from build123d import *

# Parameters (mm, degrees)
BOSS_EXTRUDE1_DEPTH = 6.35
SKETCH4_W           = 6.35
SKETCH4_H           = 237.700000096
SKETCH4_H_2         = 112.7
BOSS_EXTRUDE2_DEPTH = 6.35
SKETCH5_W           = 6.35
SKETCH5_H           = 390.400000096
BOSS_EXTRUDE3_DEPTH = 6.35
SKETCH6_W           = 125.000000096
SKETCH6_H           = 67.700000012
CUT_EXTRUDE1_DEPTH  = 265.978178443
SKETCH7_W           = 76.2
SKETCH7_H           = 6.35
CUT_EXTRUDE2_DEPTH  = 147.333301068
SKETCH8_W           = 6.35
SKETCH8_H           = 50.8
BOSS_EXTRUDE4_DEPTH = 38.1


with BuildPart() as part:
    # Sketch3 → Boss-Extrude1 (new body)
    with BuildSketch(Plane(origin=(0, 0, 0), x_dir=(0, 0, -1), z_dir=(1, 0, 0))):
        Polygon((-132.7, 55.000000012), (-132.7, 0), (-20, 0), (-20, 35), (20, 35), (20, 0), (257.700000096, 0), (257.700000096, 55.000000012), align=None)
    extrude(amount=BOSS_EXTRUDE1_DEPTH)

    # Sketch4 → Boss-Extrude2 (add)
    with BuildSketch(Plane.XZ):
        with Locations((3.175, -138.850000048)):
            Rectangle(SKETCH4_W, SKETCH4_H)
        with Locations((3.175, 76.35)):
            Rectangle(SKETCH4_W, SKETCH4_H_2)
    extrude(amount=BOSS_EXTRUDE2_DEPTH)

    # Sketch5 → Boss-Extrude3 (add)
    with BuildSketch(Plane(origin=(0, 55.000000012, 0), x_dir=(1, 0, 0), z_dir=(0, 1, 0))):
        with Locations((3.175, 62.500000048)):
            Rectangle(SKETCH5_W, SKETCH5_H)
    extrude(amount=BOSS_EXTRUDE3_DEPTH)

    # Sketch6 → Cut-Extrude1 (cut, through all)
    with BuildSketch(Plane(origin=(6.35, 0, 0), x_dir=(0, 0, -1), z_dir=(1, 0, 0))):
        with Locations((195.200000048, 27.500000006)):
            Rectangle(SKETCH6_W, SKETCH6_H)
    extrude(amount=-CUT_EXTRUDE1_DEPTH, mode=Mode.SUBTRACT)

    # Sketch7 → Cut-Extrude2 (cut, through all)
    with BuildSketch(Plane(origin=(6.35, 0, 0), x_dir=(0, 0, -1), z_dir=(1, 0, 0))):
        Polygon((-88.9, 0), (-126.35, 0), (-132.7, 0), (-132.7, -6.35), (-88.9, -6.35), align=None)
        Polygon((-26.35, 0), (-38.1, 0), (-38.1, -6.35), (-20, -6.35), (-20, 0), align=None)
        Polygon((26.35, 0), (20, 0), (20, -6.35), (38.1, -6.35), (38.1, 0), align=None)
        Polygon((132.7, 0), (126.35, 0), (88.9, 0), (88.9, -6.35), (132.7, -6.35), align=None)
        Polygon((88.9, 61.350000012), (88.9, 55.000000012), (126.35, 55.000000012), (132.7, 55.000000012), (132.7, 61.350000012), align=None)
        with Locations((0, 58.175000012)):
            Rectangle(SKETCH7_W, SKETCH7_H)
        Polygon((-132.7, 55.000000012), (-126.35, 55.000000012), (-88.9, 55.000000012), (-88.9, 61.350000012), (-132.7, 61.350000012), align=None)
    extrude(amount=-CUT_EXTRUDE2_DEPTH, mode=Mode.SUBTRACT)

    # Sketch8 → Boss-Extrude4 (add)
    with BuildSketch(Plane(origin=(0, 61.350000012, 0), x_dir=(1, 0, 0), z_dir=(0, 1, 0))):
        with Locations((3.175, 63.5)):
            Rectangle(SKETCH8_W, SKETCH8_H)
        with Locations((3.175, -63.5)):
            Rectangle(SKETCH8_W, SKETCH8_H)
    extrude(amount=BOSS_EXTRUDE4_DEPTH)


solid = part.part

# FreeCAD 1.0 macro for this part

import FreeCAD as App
import Part
import Sketcher
from FreeCAD import Vector
Q = App.Units.Quantity

doc = App.newDocument("Part")
params = doc.addObject("Spreadsheet::Sheet", "Params")
for row, (alias, value) in enumerate([
    ("sketch1_width", "55 mm"),
    ("sketch1_width2", "35 mm"),
    ("sketch1_height", "40 mm"),
    ("sketch1_height2", "112.7 mm"),
    ("sketch1_height3", "237.7 mm"),
    ("pad1_length", "6.35 mm"),
    ("sketch2_height", "237.7 mm"),
    ("sketch2_height2", "112.7 mm"),
    ("sketch2_width", "6.35 mm"),
    ("pad2_length", "6.35 mm"),
    ("sketch3_height", "390.4 mm"),
    ("sketch3_width", "6.35 mm"),
    ("pad3_length", "6.35 mm"),
    ("sketch4_height", "125 mm"),
    ("sketch4_width", "67.7 mm"),
    ("sketch5_height", "43.8 mm"),
    ("sketch5_height2", "18.1 mm"),
    ("sketch5_height3", "76.2 mm"),
    ("sketch5_width", "6.35 mm"),
    ("sketch6_height", "50.8 mm"),
    ("sketch6_width", "6.35 mm"),
    ("pad4_length", "38.1 mm"),
], start=1):
    params.set(f"A{row}", alias)
    params.set(f"B{row}", "=" + value)
    params.setAlias(f"B{row}", alias)

body = doc.addObject("PartDesign::Body", "Body")

# Sketch on YZ plane
sketch1 = body.newObject("Sketcher::SketchObject", "Sketch")
sketch1.AttachmentSupport = (doc.getObject("YZ_Plane"), [""])
sketch1.MapMode = "FlatFace"
sketch1.addGeometry(Part.LineSegment(Vector(55, 133, 0), Vector(0, 133, 0)), False)
sketch1.addGeometry(Part.LineSegment(Vector(0, 133, 0), Vector(0, 20, 0)), False)
sketch1.addGeometry(Part.LineSegment(Vector(0, 20, 0), Vector(35, 20, 0)), False)
sketch1.addGeometry(Part.LineSegment(Vector(35, 20, 0), Vector(35, -20, 0)), False)
sketch1.addGeometry(Part.LineSegment(Vector(35, -20, 0), Vector(0, -20, 0)), False)
sketch1.addGeometry(Part.LineSegment(Vector(0, -20, 0), Vector(0, -258, 0)), False)
sketch1.addGeometry(Part.LineSegment(Vector(0, -258, 0), Vector(55, -258, 0)), False)
sketch1.addGeometry(Part.LineSegment(Vector(55, -258, 0), Vector(55, 133, 0)), False)
sketch1.addConstraint(Sketcher.Constraint("Coincident", 0, 2, 1, 1))
sketch1.addConstraint(Sketcher.Constraint("Coincident", 1, 2, 2, 1))
sketch1.addConstraint(Sketcher.Constraint("Coincident", 2, 2, 3, 1))
sketch1.addConstraint(Sketcher.Constraint("Coincident", 3, 2, 4, 1))
sketch1.addConstraint(Sketcher.Constraint("Coincident", 4, 2, 5, 1))
sketch1.addConstraint(Sketcher.Constraint("Coincident", 5, 2, 6, 1))
sketch1.addConstraint(Sketcher.Constraint("Coincident", 6, 2, 7, 1))
sketch1.addConstraint(Sketcher.Constraint("Coincident", 7, 2, 0, 1))
sketch1.addConstraint(Sketcher.Constraint("Horizontal", 0))
sketch1.addConstraint(Sketcher.Constraint("Vertical", 1))
sketch1.addConstraint(Sketcher.Constraint("Horizontal", 2))
sketch1.addConstraint(Sketcher.Constraint("Vertical", 3))
sketch1.addConstraint(Sketcher.Constraint("Horizontal", 4))
sketch1.addConstraint(Sketcher.Constraint("Vertical", 5))
sketch1.addConstraint(Sketcher.Constraint("Horizontal", 6))
sketch1.addConstraint(Sketcher.Constraint("Vertical", 7))
sketch1.addConstraint(Sketcher.Constraint("Symmetric", 1, 2, 4, 2, -1, 1))
sketch1.addConstraint(Sketcher.Constraint("PointOnObject", 0, 2, -2))
sketch1.addConstraint(Sketcher.Constraint("DistanceX", 0, 2, 0, 1, Q("55 mm")))
sketch1.addConstraint(Sketcher.Constraint("DistanceX", 2, 1, 2, 2, Q("35 mm")))
sketch1.addConstraint(Sketcher.Constraint("DistanceY", 3, 2, 3, 1, Q("40 mm")))
sketch1.addConstraint(Sketcher.Constraint("DistanceY", 1, 2, 1, 1, Q("112.7 mm")))
sketch1.addConstraint(Sketcher.Constraint("DistanceY", 5, 2, 5, 1, Q("237.7 mm")))
sketch1.setExpression("Constraints[18]", "Params.sketch1_width")
sketch1.setExpression("Constraints[19]", "Params.sketch1_width2")
sketch1.setExpression("Constraints[20]", "Params.sketch1_height")
sketch1.setExpression("Constraints[21]", "Params.sketch1_height2")
sketch1.setExpression("Constraints[22]", "Params.sketch1_height3")
pad1 = body.newObject("PartDesign::Pad", "Pad")
pad1.Profile = sketch1
pad1.setExpression("Length", "Params.pad1_length")

# Sketch on XZ plane
sketch2 = body.newObject("Sketcher::SketchObject", "Sketch001")
sketch2.AttachmentSupport = (doc.getObject("XZ_Plane"), [""])
sketch2.MapMode = "FlatFace"
sketch2.addGeometry(Part.LineSegment(Vector(0, -20, 0), Vector(0, -258, 0)), False)
sketch2.addGeometry(Part.LineSegment(Vector(0, -258, 0), Vector(6, -258, 0)), False)
sketch2.addGeometry(Part.LineSegment(Vector(6, -258, 0), Vector(6, -20, 0)), False)
sketch2.addGeometry(Part.LineSegment(Vector(6, -20, 0), Vector(0, -20, 0)), False)
sketch2.addGeometry(Part.LineSegment(Vector(0, 133, 0), Vector(0, 20, 0)), False)
sketch2.addGeometry(Part.LineSegment(Vector(0, 20, 0), Vector(6, 20, 0)), False)
sketch2.addGeometry(Part.LineSegment(Vector(6, 20, 0), Vector(6, 133, 0)), False)
sketch2.addGeometry(Part.LineSegment(Vector(6, 133, 0), Vector(0, 133, 0)), False)
sketch2.addConstraint(Sketcher.Constraint("Coincident", 0, 2, 1, 1))
sketch2.addConstraint(Sketcher.Constraint("Coincident", 1, 2, 2, 1))
sketch2.addConstraint(Sketcher.Constraint("Coincident", 2, 2, 3, 1))
sketch2.addConstraint(Sketcher.Constraint("Coincident", 3, 2, 0, 1))
sketch2.addConstraint(Sketcher.Constraint("Coincident", 4, 2, 5, 1))
sketch2.addConstraint(Sketcher.Constraint("Coincident", 5, 2, 6, 1))
sketch2.addConstraint(Sketcher.Constraint("Coincident", 6, 2, 7, 1))
sketch2.addConstraint(Sketcher.Constraint("Coincident", 7, 2, 4, 1))
sketch2.addConstraint(Sketcher.Constraint("Vertical", 0))
sketch2.addConstraint(Sketcher.Constraint("Horizontal", 1))
sketch2.addConstraint(Sketcher.Constraint("Vertical", 2))
sketch2.addConstraint(Sketcher.Constraint("Horizontal", 3))
sketch2.addConstraint(Sketcher.Constraint("Vertical", 4))
sketch2.addConstraint(Sketcher.Constraint("Horizontal", 5))
sketch2.addConstraint(Sketcher.Constraint("Vertical", 6))
sketch2.addConstraint(Sketcher.Constraint("Horizontal", 7))
sketch2.addConstraint(Sketcher.Constraint("Symmetric", 3, 2, 4, 2, -1, 1))
sketch2.addConstraint(Sketcher.Constraint("PointOnObject", 0, 2, -2))
sketch2.addConstraint(Sketcher.Constraint("Vertical", 2, 2, 5, 2))
sketch2.addConstraint(Sketcher.Constraint("DistanceY", 0, 2, 0, 1, Q("237.7 mm")))
sketch2.addConstraint(Sketcher.Constraint("DistanceY", 4, 2, 4, 1, Q("112.7 mm")))
sketch2.addConstraint(Sketcher.Constraint("DistanceY", 2, 2, -1, 1, Q("20 mm")))
sketch2.addConstraint(Sketcher.Constraint("DistanceX", 1, 1, 1, 2, Q("6.35 mm")))
sketch2.setExpression("Constraints[19]", "Params.sketch2_height")
sketch2.setExpression("Constraints[20]", "Params.sketch2_height2")
sketch2.setExpression("Constraints[22]", "Params.sketch2_width")
pad2 = body.newObject("PartDesign::Pad", "Pad001")
pad2.Profile = sketch2
pad2.setExpression("Length", "Params.pad2_length")

# Sketch on XZ plane
sketch3 = body.newObject("Sketcher::SketchObject", "Sketch002")
sketch3.AttachmentSupport = (doc.getObject("XZ_Plane"), [""])
sketch3.MapMode = "FlatFace"
sketch3.AttachmentOffset = App.Placement(Vector(0, 0, -55), App.Rotation())
sketch3.addGeometry(Part.LineSegment(Vector(0, -258, 0), Vector(0, 133, 0)), False)
sketch3.addGeometry(Part.LineSegment(Vector(0, 133, 0), Vector(6, 133, 0)), False)
sketch3.addGeometry(Part.LineSegment(Vector(6, 133, 0), Vector(6, -258, 0)), False)
sketch3.addGeometry(Part.LineSegment(Vector(6, -258, 0), Vector(0, -258, 0)), False)
sketch3.addConstraint(Sketcher.Constraint("Coincident", 0, 2, 1, 1))
sketch3.addConstraint(Sketcher.Constraint("Coincident", 1, 2, 2, 1))
sketch3.addConstraint(Sketcher.Constraint("Coincident", 2, 2, 3, 1))
sketch3.addConstraint(Sketcher.Constraint("Coincident", 3, 2, 0, 1))
sketch3.addConstraint(Sketcher.Constraint("Vertical", 0))
sketch3.addConstraint(Sketcher.Constraint("Horizontal", 1))
sketch3.addConstraint(Sketcher.Constraint("Vertical", 2))
sketch3.addConstraint(Sketcher.Constraint("Horizontal", 3))
sketch3.addConstraint(Sketcher.Constraint("PointOnObject", 0, 2, -2))
sketch3.addConstraint(Sketcher.Constraint("DistanceY", 0, 1, 0, 2, Q("390.4 mm")))
sketch3.addConstraint(Sketcher.Constraint("DistanceX", 1, 1, 1, 2, Q("6.35 mm")))
sketch3.addConstraint(Sketcher.Constraint("DistanceY", -1, 1, 0, 2, Q("132.7 mm")))
sketch3.setExpression("Constraints[9]", "Params.sketch3_height")
sketch3.setExpression("Constraints[10]", "Params.sketch3_width")
pad3 = body.newObject("PartDesign::Pad", "Pad002")
pad3.Profile = sketch3
pad3.setExpression("Length", "Params.pad3_length")
pad3.Reversed = True

# Sketch on YZ plane
sketch4 = body.newObject("Sketcher::SketchObject", "Sketch003")
sketch4.AttachmentSupport = (doc.getObject("YZ_Plane"), [""])
sketch4.MapMode = "FlatFace"
sketch4.AttachmentOffset = App.Placement(Vector(0, 0, 6.35), App.Rotation())
sketch4.addGeometry(Part.LineSegment(Vector(61, -133, 0), Vector(-6, -133, 0)), False)
sketch4.addGeometry(Part.LineSegment(Vector(-6, -133, 0), Vector(-6, -258, 0)), False)
sketch4.addGeometry(Part.LineSegment(Vector(-6, -258, 0), Vector(61, -258, 0)), False)
sketch4.addGeometry(Part.LineSegment(Vector(61, -258, 0), Vector(61, -133, 0)), False)
sketch4.addConstraint(Sketcher.Constraint("Coincident", 0, 2, 1, 1))
sketch4.addConstraint(Sketcher.Constraint("Coincident", 1, 2, 2, 1))
sketch4.addConstraint(Sketcher.Constraint("Coincident", 2, 2, 3, 1))
sketch4.addConstraint(Sketcher.Constraint("Coincident", 3, 2, 0, 1))
sketch4.addConstraint(Sketcher.Constraint("Horizontal", 0))
sketch4.addConstraint(Sketcher.Constraint("Vertical", 1))
sketch4.addConstraint(Sketcher.Constraint("Horizontal", 2))
sketch4.addConstraint(Sketcher.Constraint("Vertical", 3))
sketch4.addConstraint(Sketcher.Constraint("DistanceY", 1, 2, 1, 1, Q("125 mm")))
sketch4.addConstraint(Sketcher.Constraint("DistanceX", 0, 2, 0, 1, Q("67.7 mm")))
sketch4.addConstraint(Sketcher.Constraint("DistanceY", 0, 2, -1, 1, Q("132.7 mm")))
sketch4.addConstraint(Sketcher.Constraint("DistanceX", 0, 2, -1, 1, Q("6.35 mm")))
sketch4.setExpression("Constraints[8]", "Params.sketch4_height")
sketch4.setExpression("Constraints[9]", "Params.sketch4_width")
pocket1 = body.newObject("PartDesign::Pocket", "Pocket")
pocket1.Profile = sketch4
pocket1.Type = "ThroughAll"

# Sketch on YZ plane
sketch5 = body.newObject("Sketcher::SketchObject", "Sketch004")
sketch5.AttachmentSupport = (doc.getObject("YZ_Plane"), [""])
sketch5.MapMode = "FlatFace"
sketch5.AttachmentOffset = App.Placement(Vector(0, 0, 6.35), App.Rotation())
sketch5.addGeometry(Part.LineSegment(Vector(0, 89, 0), Vector(0, 133, 0)), False)
sketch5.addGeometry(Part.LineSegment(Vector(0, 133, 0), Vector(-6, 133, 0)), False)
sketch5.addGeometry(Part.LineSegment(Vector(-6, 133, 0), Vector(-6, 89, 0)), False)
sketch5.addGeometry(Part.LineSegment(Vector(-6, 89, 0), Vector(0, 89, 0)), False)
sketch5.addGeometry(Part.LineSegment(Vector(0, 38, 0), Vector(-6, 38, 0)), False)
sketch5.addGeometry(Part.LineSegment(Vector(-6, 38, 0), Vector(-6, 20, 0)), False)
sketch5.addGeometry(Part.LineSegment(Vector(-6, 20, 0), Vector(0, 20, 0)), False)
sketch5.addGeometry(Part.LineSegment(Vector(0, 20, 0), Vector(0, 38, 0)), False)
sketch5.addGeometry(Part.LineSegment(Vector(0, -20, 0), Vector(-6, -20, 0)), False)
sketch5.addGeometry(Part.LineSegment(Vector(-6, -20, 0), Vector(-6, -38, 0)), False)
sketch5.addGeometry(Part.LineSegment(Vector(-6, -38, 0), Vector(0, -38, 0)), False)
sketch5.addGeometry(Part.LineSegment(Vector(0, -38, 0), Vector(0, -20, 0)), False)
sketch5.addGeometry(Part.LineSegment(Vector(0, -133, 0), Vector(0, -89, 0)), False)
sketch5.addGeometry(Part.LineSegment(Vector(0, -89, 0), Vector(-6, -89, 0)), False)
sketch5.addGeometry(Part.LineSegment(Vector(-6, -89, 0), Vector(-6, -133, 0)), False)
sketch5.addGeometry(Part.LineSegment(Vector(-6, -133, 0), Vector(0, -133, 0)), False)
sketch5.addGeometry(Part.LineSegment(Vector(61, -89, 0), Vector(55, -89, 0)), False)
sketch5.addGeometry(Part.LineSegment(Vector(55, -89, 0), Vector(55, -133, 0)), False)
sketch5.addGeometry(Part.LineSegment(Vector(55, -133, 0), Vector(61, -133, 0)), False)
sketch5.addGeometry(Part.LineSegment(Vector(61, -133, 0), Vector(61, -89, 0)), False)
sketch5.addGeometry(Part.LineSegment(Vector(61, 38, 0), Vector(55, 38, 0)), False)
sketch5.addGeometry(Part.LineSegment(Vector(55, 38, 0), Vector(55, -38, 0)), False)
sketch5.addGeometry(Part.LineSegment(Vector(55, -38, 0), Vector(61, -38, 0)), False)
sketch5.addGeometry(Part.LineSegment(Vector(61, -38, 0), Vector(61, 38, 0)), False)
sketch5.addGeometry(Part.LineSegment(Vector(55, 133, 0), Vector(55, 89, 0)), False)
sketch5.addGeometry(Part.LineSegment(Vector(55, 89, 0), Vector(61, 89, 0)), False)
sketch5.addGeometry(Part.LineSegment(Vector(61, 89, 0), Vector(61, 133, 0)), False)
sketch5.addGeometry(Part.LineSegment(Vector(61, 133, 0), Vector(55, 133, 0)), False)
sketch5.addConstraint(Sketcher.Constraint("Coincident", 0, 2, 1, 1))
sketch5.addConstraint(Sketcher.Constraint("Coincident", 1, 2, 2, 1))
sketch5.addConstraint(Sketcher.Constraint("Coincident", 2, 2, 3, 1))
sketch5.addConstraint(Sketcher.Constraint("Coincident", 3, 2, 0, 1))
sketch5.addConstraint(Sketcher.Constraint("Coincident", 4, 2, 5, 1))
sketch5.addConstraint(Sketcher.Constraint("Coincident", 5, 2, 6, 1))
sketch5.addConstraint(Sketcher.Constraint("Coincident", 6, 2, 7, 1))
sketch5.addConstraint(Sketcher.Constraint("Coincident", 7, 2, 4, 1))
sketch5.addConstraint(Sketcher.Constraint("Coincident", 8, 2, 9, 1))
sketch5.addConstraint(Sketcher.Constraint("Coincident", 9, 2, 10, 1))
sketch5.addConstraint(Sketcher.Constraint("Coincident", 10, 2, 11, 1))
sketch5.addConstraint(Sketcher.Constraint("Coincident", 11, 2, 8, 1))
sketch5.addConstraint(Sketcher.Constraint("Coincident", 12, 2, 13, 1))
sketch5.addConstraint(Sketcher.Constraint("Coincident", 13, 2, 14, 1))
sketch5.addConstraint(Sketcher.Constraint("Coincident", 14, 2, 15, 1))
sketch5.addConstraint(Sketcher.Constraint("Coincident", 15, 2, 12, 1))
sketch5.addConstraint(Sketcher.Constraint("Coincident", 16, 2, 17, 1))
sketch5.addConstraint(Sketcher.Constraint("Coincident", 17, 2, 18, 1))
sketch5.addConstraint(Sketcher.Constraint("Coincident", 18, 2, 19, 1))
sketch5.addConstraint(Sketcher.Constraint("Coincident", 19, 2, 16, 1))
sketch5.addConstraint(Sketcher.Constraint("Coincident", 20, 2, 21, 1))
sketch5.addConstraint(Sketcher.Constraint("Coincident", 21, 2, 22, 1))
sketch5.addConstraint(Sketcher.Constraint("Coincident", 22, 2, 23, 1))
sketch5.addConstraint(Sketcher.Constraint("Coincident", 23, 2, 20, 1))
sketch5.addConstraint(Sketcher.Constraint("Coincident", 24, 2, 25, 1))
sketch5.addConstraint(Sketcher.Constraint("Coincident", 25, 2, 26, 1))
sketch5.addConstraint(Sketcher.Constraint("Coincident", 26, 2, 27, 1))
sketch5.addConstraint(Sketcher.Constraint("Coincident", 27, 2, 24, 1))
sketch5.addConstraint(Sketcher.Constraint("Vertical", 0))
sketch5.addConstraint(Sketcher.Constraint("Horizontal", 1))
sketch5.addConstraint(Sketcher.Constraint("Vertical", 2))
sketch5.addConstraint(Sketcher.Constraint("Horizontal", 3))
sketch5.addConstraint(Sketcher.Constraint("Horizontal", 4))
sketch5.addConstraint(Sketcher.Constraint("Vertical", 5))
sketch5.addConstraint(Sketcher.Constraint("Horizontal", 6))
sketch5.addConstraint(Sketcher.Constraint("Vertical", 7))
sketch5.addConstraint(Sketcher.Constraint("Horizontal", 8))
sketch5.addConstraint(Sketcher.Constraint("Vertical", 9))
sketch5.addConstraint(Sketcher.Constraint("Horizontal", 10))
sketch5.addConstraint(Sketcher.Constraint("Vertical", 11))
sketch5.addConstraint(Sketcher.Constraint("Vertical", 12))
sketch5.addConstraint(Sketcher.Constraint("Horizontal", 13))
sketch5.addConstraint(Sketcher.Constraint("Vertical", 14))
sketch5.addConstraint(Sketcher.Constraint("Horizontal", 15))
sketch5.addConstraint(Sketcher.Constraint("Horizontal", 16))
sketch5.addConstraint(Sketcher.Constraint("Vertical", 17))
sketch5.addConstraint(Sketcher.Constraint("Horizontal", 18))
sketch5.addConstraint(Sketcher.Constraint("Vertical", 19))
sketch5.addConstraint(Sketcher.Constraint("Horizontal", 20))
sketch5.addConstraint(Sketcher.Constraint("Vertical", 21))
sketch5.addConstraint(Sketcher.Constraint("Horizontal", 22))
sketch5.addConstraint(Sketcher.Constraint("Vertical", 23))
sketch5.addConstraint(Sketcher.Constraint("Vertical", 24))
sketch5.addConstraint(Sketcher.Constraint("Horizontal", 25))
sketch5.addConstraint(Sketcher.Constraint("Vertical", 26))
sketch5.addConstraint(Sketcher.Constraint("Horizontal", 27))
sketch5.addConstraint(Sketcher.Constraint("Symmetric", 7, 2, 10, 2, -1, 1))
sketch5.addConstraint(Sketcher.Constraint("Symmetric", 3, 2, 12, 2, -1, 1))
sketch5.addConstraint(Sketcher.Constraint("Symmetric", 5, 2, 8, 2, -1))
sketch5.addConstraint(Sketcher.Constraint("Symmetric", 1, 2, 14, 2, -1))
sketch5.addConstraint(Sketcher.Constraint("Symmetric", 16, 2, 24, 2, -1))
sketch5.addConstraint(Sketcher.Constraint("Symmetric", 18, 2, 26, 2, -1))
sketch5.addConstraint(Sketcher.Constraint("PointOnObject", 0, 2, -2))
sketch5.addConstraint(Sketcher.Constraint("PointOnObject", 6, 2, -2))
sketch5.addConstraint(Sketcher.Constraint("Horizontal", 13, 2, 16, 2))
sketch5.addConstraint(Sketcher.Constraint("Horizontal", 15, 2, 17, 2))
sketch5.addConstraint(Sketcher.Constraint("Horizontal", 7, 2, 20, 2))
sketch5.addConstraint(Sketcher.Constraint("Horizontal", 10, 2, 21, 2))
sketch5.addConstraint(Sketcher.Constraint("Vertical", 2, 2, 4, 2))
sketch5.addConstraint(Sketcher.Constraint("Vertical", 17, 2, 20, 2))
sketch5.addConstraint(Sketcher.Constraint("Vertical", 19, 2, 22, 2))
sketch5.addConstraint(Sketcher.Constraint("Equal", 15, 16))
sketch5.addConstraint(Sketcher.Constraint("DistanceY", 0, 1, 0, 2, Q("43.8 mm")))
sketch5.addConstraint(Sketcher.Constraint("DistanceY", 5, 2, 5, 1, Q("18.1 mm")))
sketch5.addConstraint(Sketcher.Constraint("DistanceY", 21, 2, 21, 1, Q("76.2 mm")))
sketch5.addConstraint(Sketcher.Constraint("DistanceX", -1, 1, 16, 2, Q("55 mm")))
sketch5.addConstraint(Sketcher.Constraint("DistanceX", 1, 2, 1, 1, Q("6.35 mm")))
sketch5.addConstraint(Sketcher.Constraint("DistanceY", -1, 1, 0, 2, Q("132.7 mm")))
sketch5.setExpression("Constraints[72]", "Params.sketch5_height")
sketch5.setExpression("Constraints[73]", "Params.sketch5_height2")
sketch5.setExpression("Constraints[74]", "Params.sketch5_height3")
sketch5.setExpression("Constraints[76]", "Params.sketch5_width")
pocket2 = body.newObject("PartDesign::Pocket", "Pocket001")
pocket2.Profile = sketch5
pocket2.Type = "ThroughAll"

# Sketch on XZ plane
sketch6 = body.newObject("Sketcher::SketchObject", "Sketch005")
sketch6.AttachmentSupport = (doc.getObject("XZ_Plane"), [""])
sketch6.MapMode = "FlatFace"
sketch6.AttachmentOffset = App.Placement(Vector(0, 0, -61.35), App.Rotation())
sketch6.addGeometry(Part.LineSegment(Vector(0, -89, 0), Vector(0, -38, 0)), False)
sketch6.addGeometry(Part.LineSegment(Vector(0, -38, 0), Vector(6, -38, 0)), False)
sketch6.addGeometry(Part.LineSegment(Vector(6, -38, 0), Vector(6, -89, 0)), False)
sketch6.addGeometry(Part.LineSegment(Vector(6, -89, 0), Vector(0, -89, 0)), False)
sketch6.addGeometry(Part.LineSegment(Vector(0, 38, 0), Vector(0, 89, 0)), False)
sketch6.addGeometry(Part.LineSegment(Vector(0, 89, 0), Vector(6, 89, 0)), False)
sketch6.addGeometry(Part.LineSegment(Vector(6, 89, 0), Vector(6, 38, 0)), False)
sketch6.addGeometry(Part.LineSegment(Vector(6, 38, 0), Vector(0, 38, 0)), False)
sketch6.addConstraint(Sketcher.Constraint("Coincident", 0, 2, 1, 1))
sketch6.addConstraint(Sketcher.Constraint("Coincident", 1, 2, 2, 1))
sketch6.addConstraint(Sketcher.Constraint("Coincident", 2, 2, 3, 1))
sketch6.addConstraint(Sketcher.Constraint("Coincident", 3, 2, 0, 1))
sketch6.addConstraint(Sketcher.Constraint("Coincident", 4, 2, 5, 1))
sketch6.addConstraint(Sketcher.Constraint("Coincident", 5, 2, 6, 1))
sketch6.addConstraint(Sketcher.Constraint("Coincident", 6, 2, 7, 1))
sketch6.addConstraint(Sketcher.Constraint("Coincident", 7, 2, 4, 1))
sketch6.addConstraint(Sketcher.Constraint("Vertical", 0))
sketch6.addConstraint(Sketcher.Constraint("Horizontal", 1))
sketch6.addConstraint(Sketcher.Constraint("Vertical", 2))
sketch6.addConstraint(Sketcher.Constraint("Horizontal", 3))
sketch6.addConstraint(Sketcher.Constraint("Vertical", 4))
sketch6.addConstraint(Sketcher.Constraint("Horizontal", 5))
sketch6.addConstraint(Sketcher.Constraint("Vertical", 6))
sketch6.addConstraint(Sketcher.Constraint("Horizontal", 7))
sketch6.addConstraint(Sketcher.Constraint("Symmetric", 3, 2, 4, 2, -1, 1))
sketch6.addConstraint(Sketcher.Constraint("Symmetric", 1, 2, 6, 2, -1))
sketch6.addConstraint(Sketcher.Constraint("PointOnObject", 0, 2, -2))
sketch6.addConstraint(Sketcher.Constraint("DistanceY", 0, 1, 0, 2, Q("50.8 mm")))
sketch6.addConstraint(Sketcher.Constraint("DistanceY", 0, 2, 4, 2, Q("127 mm")))
sketch6.addConstraint(Sketcher.Constraint("DistanceX", 1, 1, 1, 2, Q("6.35 mm")))
sketch6.setExpression("Constraints[19]", "Params.sketch6_height")
sketch6.setExpression("Constraints[21]", "Params.sketch6_width")
pad4 = body.newObject("PartDesign::Pad", "Pad003")
pad4.Profile = sketch6
pad4.setExpression("Length", "Params.pad4_length")
pad4.Reversed = True

doc.recompute()
